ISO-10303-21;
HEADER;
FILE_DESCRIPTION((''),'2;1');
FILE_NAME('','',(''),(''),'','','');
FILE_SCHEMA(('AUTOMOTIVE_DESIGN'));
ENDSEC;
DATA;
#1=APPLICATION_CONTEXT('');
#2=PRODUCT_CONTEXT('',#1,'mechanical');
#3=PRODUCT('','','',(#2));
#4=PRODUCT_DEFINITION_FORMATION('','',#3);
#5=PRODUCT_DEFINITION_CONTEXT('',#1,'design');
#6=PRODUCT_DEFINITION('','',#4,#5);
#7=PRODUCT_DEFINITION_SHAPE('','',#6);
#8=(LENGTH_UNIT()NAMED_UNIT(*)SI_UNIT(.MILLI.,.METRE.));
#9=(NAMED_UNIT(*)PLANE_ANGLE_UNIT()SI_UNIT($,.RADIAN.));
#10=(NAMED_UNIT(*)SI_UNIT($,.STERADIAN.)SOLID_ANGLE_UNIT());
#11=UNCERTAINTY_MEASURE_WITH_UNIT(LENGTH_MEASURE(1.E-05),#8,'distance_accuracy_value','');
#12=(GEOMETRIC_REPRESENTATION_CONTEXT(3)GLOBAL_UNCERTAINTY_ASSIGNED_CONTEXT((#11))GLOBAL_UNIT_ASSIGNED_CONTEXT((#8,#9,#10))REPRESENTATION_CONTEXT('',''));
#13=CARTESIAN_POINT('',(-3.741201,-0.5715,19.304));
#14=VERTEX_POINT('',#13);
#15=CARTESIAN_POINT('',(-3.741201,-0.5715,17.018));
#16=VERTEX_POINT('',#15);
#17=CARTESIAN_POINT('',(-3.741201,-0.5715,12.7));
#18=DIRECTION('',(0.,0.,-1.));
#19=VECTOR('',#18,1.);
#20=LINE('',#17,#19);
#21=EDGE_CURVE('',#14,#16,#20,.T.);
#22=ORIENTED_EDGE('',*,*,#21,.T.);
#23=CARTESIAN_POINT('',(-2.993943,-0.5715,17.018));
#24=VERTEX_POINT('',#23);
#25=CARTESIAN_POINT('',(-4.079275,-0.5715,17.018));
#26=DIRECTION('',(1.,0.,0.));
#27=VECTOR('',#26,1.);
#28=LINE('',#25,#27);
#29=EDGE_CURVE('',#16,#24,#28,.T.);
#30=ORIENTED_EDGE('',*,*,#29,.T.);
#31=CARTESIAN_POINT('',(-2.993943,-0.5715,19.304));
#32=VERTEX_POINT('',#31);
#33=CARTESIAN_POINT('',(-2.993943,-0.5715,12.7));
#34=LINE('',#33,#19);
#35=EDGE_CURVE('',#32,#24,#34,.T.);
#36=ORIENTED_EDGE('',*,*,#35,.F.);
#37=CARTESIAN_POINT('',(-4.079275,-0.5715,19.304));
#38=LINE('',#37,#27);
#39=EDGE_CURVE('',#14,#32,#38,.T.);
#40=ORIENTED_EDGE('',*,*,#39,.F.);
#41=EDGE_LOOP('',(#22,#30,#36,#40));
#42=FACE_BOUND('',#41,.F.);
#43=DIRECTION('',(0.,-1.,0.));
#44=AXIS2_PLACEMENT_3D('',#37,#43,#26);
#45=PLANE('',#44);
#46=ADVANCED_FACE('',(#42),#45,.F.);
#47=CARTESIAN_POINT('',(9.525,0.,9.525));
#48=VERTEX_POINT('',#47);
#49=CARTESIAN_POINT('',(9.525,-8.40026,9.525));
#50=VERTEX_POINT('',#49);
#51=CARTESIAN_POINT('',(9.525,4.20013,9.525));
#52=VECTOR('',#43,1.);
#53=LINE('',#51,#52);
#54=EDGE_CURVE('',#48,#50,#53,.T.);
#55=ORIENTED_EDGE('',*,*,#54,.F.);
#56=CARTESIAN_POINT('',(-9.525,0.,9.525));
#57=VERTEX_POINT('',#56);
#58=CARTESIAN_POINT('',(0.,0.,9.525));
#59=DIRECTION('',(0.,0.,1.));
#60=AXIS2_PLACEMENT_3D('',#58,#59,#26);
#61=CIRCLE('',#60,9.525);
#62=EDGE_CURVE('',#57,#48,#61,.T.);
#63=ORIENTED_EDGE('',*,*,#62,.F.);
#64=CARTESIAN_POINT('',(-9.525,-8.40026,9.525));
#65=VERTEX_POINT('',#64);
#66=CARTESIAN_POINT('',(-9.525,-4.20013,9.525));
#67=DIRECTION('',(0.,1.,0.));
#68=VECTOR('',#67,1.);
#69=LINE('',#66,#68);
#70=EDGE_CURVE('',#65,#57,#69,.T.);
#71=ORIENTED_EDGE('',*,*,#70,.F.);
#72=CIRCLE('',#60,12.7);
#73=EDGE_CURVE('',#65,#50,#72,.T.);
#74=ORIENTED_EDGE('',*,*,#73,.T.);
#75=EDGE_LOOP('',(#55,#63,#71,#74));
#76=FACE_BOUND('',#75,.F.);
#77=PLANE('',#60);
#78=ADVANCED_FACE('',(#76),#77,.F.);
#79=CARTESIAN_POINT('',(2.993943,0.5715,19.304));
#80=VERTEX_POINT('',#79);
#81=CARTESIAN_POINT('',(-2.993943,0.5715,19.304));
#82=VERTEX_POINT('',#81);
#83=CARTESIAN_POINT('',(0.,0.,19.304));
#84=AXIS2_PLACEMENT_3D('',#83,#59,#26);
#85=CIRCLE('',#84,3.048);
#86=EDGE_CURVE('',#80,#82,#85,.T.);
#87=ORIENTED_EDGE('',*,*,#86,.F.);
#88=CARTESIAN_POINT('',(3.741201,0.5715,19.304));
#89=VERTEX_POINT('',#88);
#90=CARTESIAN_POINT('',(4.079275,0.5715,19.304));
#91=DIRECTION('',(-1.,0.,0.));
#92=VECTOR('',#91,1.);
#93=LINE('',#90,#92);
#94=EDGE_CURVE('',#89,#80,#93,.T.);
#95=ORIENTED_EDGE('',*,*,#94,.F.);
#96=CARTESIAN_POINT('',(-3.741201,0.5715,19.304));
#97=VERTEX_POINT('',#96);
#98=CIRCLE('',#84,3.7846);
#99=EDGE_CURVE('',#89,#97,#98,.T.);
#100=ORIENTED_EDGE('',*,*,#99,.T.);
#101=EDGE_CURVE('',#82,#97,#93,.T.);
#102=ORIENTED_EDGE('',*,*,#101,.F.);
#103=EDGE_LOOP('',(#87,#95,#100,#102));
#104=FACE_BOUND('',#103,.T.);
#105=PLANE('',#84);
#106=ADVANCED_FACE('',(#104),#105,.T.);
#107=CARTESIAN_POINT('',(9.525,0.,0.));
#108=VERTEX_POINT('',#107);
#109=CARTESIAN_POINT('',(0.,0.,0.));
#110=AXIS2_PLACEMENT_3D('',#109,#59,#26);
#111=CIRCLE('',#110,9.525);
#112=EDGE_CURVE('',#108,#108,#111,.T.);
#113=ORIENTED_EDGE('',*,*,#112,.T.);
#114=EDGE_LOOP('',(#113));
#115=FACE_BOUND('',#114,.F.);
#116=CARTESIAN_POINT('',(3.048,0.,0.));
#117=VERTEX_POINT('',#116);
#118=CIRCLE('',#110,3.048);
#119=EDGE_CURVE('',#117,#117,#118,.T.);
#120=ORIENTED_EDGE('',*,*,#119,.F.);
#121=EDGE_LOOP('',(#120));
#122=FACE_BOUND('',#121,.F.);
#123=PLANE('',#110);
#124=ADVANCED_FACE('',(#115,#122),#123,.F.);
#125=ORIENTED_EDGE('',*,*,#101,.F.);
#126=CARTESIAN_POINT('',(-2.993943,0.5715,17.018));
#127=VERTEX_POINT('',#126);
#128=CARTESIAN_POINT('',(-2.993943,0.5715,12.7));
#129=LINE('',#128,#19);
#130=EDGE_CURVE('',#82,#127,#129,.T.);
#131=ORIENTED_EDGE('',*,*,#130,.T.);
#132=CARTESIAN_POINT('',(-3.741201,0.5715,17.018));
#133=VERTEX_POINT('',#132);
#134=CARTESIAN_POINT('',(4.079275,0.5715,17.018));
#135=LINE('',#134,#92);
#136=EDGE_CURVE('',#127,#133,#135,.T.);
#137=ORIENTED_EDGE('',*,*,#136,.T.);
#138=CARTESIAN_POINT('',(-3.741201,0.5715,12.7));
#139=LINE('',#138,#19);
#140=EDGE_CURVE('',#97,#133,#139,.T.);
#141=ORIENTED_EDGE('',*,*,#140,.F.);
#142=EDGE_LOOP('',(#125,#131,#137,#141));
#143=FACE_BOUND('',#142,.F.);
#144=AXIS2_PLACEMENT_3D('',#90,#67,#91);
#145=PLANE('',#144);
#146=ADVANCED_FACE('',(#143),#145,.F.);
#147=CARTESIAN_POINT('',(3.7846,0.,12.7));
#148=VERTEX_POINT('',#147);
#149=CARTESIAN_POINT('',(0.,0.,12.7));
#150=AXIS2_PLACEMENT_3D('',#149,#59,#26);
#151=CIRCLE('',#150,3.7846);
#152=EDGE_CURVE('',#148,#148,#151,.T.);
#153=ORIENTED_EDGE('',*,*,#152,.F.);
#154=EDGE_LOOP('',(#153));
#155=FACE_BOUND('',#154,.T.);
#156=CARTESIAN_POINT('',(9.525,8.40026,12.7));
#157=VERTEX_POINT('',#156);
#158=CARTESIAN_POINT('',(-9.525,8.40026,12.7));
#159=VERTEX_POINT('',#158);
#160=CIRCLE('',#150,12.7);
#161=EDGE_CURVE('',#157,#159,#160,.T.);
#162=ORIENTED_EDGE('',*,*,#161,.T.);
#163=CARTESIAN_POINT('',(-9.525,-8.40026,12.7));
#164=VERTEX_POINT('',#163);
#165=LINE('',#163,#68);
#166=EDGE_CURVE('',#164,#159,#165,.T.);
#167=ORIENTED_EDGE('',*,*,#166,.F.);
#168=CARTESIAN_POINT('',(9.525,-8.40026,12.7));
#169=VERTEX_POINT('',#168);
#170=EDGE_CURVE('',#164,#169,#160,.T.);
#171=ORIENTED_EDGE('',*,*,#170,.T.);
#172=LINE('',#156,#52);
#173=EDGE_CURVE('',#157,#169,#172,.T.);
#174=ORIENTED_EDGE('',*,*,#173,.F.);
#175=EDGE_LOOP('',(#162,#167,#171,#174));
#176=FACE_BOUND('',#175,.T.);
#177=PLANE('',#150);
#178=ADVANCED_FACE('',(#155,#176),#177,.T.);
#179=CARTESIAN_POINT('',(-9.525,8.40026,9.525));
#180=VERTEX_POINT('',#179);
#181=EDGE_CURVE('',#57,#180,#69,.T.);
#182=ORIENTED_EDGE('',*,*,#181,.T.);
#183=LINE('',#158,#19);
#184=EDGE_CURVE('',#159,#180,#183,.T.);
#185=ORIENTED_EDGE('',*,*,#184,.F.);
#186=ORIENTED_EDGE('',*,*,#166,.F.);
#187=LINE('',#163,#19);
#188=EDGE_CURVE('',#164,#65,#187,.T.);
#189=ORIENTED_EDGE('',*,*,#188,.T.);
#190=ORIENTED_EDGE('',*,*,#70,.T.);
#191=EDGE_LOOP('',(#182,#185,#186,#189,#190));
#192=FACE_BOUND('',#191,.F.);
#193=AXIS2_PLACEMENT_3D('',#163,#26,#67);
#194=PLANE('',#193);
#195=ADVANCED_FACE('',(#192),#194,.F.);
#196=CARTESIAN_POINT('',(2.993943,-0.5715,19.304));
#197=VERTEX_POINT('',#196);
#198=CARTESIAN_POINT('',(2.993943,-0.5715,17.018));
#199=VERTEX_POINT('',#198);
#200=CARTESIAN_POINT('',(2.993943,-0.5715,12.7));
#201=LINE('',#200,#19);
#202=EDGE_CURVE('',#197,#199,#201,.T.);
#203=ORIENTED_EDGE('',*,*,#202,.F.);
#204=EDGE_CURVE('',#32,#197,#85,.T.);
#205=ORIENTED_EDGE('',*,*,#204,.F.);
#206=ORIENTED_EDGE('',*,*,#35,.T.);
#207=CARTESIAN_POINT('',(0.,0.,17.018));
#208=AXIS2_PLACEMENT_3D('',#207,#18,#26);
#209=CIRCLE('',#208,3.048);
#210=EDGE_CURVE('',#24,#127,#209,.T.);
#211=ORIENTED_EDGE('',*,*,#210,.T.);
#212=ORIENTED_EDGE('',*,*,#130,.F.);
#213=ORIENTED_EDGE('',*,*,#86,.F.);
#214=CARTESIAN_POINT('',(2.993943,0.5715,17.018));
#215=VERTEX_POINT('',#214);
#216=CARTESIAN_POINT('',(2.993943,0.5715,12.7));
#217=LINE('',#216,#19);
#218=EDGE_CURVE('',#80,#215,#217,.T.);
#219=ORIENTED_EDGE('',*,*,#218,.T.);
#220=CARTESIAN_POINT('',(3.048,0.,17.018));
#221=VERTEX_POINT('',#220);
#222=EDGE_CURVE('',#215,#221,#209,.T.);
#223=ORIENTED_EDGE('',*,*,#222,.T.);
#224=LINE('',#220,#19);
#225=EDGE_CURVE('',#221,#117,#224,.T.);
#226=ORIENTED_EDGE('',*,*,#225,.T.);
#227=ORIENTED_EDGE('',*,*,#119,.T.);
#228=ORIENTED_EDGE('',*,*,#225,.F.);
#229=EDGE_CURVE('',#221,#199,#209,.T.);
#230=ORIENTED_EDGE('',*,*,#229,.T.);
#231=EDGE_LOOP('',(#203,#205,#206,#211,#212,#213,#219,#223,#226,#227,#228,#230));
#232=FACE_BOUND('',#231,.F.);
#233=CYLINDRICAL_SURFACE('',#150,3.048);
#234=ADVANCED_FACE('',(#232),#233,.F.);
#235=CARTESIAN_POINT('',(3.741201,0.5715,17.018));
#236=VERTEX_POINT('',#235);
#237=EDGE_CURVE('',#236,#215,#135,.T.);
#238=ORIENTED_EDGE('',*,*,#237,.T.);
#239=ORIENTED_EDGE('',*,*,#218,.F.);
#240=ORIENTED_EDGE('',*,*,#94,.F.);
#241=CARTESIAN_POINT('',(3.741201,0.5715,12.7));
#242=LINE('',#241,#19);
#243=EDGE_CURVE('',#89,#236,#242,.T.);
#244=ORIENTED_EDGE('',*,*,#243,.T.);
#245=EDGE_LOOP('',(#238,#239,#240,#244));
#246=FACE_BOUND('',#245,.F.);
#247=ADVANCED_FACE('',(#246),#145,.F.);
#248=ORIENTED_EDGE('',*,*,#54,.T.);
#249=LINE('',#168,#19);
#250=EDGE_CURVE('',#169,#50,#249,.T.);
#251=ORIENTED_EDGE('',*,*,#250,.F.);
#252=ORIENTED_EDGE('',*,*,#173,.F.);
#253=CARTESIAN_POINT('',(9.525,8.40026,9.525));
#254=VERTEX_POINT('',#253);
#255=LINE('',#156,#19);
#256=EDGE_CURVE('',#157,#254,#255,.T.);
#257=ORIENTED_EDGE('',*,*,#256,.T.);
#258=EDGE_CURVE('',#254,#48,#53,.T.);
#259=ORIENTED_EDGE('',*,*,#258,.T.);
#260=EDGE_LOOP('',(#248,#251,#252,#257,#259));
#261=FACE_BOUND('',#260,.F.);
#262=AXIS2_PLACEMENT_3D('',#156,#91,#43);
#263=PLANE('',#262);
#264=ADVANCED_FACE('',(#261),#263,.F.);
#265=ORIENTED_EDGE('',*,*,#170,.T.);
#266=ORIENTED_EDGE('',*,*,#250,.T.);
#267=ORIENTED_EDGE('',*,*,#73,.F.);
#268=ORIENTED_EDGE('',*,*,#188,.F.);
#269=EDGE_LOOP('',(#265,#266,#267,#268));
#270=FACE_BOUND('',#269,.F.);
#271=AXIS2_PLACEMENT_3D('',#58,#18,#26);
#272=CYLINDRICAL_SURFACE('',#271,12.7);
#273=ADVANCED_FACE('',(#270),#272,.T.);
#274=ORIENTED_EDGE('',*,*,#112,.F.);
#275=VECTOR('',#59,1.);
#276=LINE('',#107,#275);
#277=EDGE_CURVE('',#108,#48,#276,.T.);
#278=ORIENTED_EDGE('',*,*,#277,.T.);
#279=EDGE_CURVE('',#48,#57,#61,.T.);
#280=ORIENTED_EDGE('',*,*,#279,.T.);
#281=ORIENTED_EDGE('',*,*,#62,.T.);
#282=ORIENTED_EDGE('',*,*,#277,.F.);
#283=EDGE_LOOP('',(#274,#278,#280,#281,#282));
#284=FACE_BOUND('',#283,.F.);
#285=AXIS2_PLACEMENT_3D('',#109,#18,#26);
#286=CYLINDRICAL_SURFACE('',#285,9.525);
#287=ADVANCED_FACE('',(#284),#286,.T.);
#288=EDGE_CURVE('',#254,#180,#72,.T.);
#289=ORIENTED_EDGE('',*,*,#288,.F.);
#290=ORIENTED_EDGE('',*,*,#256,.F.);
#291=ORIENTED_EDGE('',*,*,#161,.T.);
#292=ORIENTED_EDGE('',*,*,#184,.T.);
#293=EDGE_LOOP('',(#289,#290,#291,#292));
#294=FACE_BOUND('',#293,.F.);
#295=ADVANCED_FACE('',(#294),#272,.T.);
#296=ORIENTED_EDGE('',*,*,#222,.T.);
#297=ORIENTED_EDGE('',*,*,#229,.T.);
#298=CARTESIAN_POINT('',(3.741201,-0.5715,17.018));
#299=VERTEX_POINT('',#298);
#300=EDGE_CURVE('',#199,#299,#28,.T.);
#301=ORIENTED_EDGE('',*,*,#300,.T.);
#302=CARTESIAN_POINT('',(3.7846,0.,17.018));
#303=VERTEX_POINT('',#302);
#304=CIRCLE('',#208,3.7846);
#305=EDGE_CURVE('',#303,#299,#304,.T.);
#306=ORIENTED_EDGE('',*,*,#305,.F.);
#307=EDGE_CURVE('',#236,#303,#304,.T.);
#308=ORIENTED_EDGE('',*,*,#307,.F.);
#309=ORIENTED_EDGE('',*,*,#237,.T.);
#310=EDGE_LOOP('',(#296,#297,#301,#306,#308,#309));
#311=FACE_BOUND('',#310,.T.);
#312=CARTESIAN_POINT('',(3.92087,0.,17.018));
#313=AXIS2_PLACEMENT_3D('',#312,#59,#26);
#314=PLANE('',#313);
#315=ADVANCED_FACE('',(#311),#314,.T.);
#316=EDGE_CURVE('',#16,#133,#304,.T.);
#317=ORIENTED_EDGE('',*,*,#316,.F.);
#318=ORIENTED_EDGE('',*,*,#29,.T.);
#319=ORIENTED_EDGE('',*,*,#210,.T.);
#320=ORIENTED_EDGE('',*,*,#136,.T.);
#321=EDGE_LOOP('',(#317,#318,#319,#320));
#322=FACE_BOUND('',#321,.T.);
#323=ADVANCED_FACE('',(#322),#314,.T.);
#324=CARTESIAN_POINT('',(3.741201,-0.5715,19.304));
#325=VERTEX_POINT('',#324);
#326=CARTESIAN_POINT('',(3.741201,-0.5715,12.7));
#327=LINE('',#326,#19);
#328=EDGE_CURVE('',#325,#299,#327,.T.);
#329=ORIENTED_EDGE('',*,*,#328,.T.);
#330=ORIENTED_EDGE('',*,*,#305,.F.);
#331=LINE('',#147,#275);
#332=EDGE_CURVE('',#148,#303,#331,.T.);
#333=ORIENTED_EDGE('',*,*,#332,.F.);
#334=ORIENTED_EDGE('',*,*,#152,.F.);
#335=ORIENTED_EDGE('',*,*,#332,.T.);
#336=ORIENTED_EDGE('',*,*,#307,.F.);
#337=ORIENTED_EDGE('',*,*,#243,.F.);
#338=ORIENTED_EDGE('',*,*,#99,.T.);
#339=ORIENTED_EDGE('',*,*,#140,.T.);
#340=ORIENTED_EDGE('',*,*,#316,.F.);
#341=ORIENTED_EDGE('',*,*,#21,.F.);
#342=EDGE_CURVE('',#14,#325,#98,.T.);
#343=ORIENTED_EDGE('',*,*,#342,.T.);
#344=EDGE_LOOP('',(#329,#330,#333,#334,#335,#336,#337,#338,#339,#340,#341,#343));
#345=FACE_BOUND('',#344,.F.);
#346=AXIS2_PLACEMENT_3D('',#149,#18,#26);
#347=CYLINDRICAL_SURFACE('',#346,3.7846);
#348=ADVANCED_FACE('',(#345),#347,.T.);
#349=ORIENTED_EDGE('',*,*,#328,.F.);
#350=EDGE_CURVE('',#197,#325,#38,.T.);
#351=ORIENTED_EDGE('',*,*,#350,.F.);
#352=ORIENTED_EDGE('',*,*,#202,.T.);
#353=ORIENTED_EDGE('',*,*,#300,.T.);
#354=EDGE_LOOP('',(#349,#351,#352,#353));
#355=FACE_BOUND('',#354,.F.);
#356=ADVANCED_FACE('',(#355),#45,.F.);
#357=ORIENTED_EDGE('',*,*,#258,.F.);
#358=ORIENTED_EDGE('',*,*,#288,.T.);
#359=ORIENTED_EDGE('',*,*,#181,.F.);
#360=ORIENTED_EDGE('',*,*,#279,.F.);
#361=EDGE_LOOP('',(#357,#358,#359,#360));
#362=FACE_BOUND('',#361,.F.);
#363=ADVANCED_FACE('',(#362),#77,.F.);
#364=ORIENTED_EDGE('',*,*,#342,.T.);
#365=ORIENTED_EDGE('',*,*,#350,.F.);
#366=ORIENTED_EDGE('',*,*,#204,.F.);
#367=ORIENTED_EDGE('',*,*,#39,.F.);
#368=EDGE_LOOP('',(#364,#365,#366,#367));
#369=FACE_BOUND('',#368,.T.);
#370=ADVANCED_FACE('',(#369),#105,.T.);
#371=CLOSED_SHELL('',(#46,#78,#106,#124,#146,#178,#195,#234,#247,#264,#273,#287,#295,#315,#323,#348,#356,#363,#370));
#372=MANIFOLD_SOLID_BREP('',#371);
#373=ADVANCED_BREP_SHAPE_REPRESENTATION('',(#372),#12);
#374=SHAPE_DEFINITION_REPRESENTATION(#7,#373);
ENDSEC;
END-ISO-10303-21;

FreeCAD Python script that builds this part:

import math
import FreeCAD as App
import Part
import Sketcher
Q = App.Units.Quantity

doc = App.newDocument("Part")
body = doc.addObject("PartDesign::Body", "Body")

sketch1 = doc.addObject("Sketcher::SketchObject", "Sketch")
body.addObject(sketch1)
sketch1.AttachmentSupport = (doc.XY_Plane, [""])
sketch1.MapMode = "FlatFace"
sketch1.addGeometry(Part.Circle(App.Vector(0, 0, 0), App.Vector(0, 0, 1), 10), False)
sketch1.addConstraint(Sketcher.Constraint("Coincident", 0, 3, -1, 1))
sketch1.addConstraint(Sketcher.Constraint("Diameter", 0, Q("0.75 in")))
pad1 = doc.addObject("PartDesign::Pad", "Pad")
body.addObject(pad1)
pad1.Profile = sketch1
pad1.Length = Q("0.375 in")

sketch2 = doc.addObject("Sketcher::SketchObject", "Sketch001")
body.addObject(sketch2)
sketch2.AttachmentSupport = (doc.XY_Plane, [""])
sketch2.MapMode = "FlatFace"
sketch2.AttachmentOffset = App.Placement(App.Vector(0, 0, 0.375 * 25.4), App.Rotation())
sketch2.addGeometry(Part.Circle(App.Vector(0, 0, 0), App.Vector(0, 0, 1), 13), False)
sketch2.addConstraint(Sketcher.Constraint("Coincident", 0, 3, -1, 1))
sketch2.addConstraint(Sketcher.Constraint("Diameter", 0, Q("1 in")))
pad2 = doc.addObject("PartDesign::Pad", "Pad001")
body.addObject(pad2)
pad2.Profile = sketch2
pad2.Length = Q("0.125 in")

sketch3 = doc.addObject("Sketcher::SketchObject", "Sketch002")
body.addObject(sketch3)
sketch3.AttachmentSupport = (doc.XY_Plane, [""])
sketch3.MapMode = "FlatFace"
sketch3.AttachmentOffset = App.Placement(App.Vector(0, 0, 0.5 * 25.4), App.Rotation())
sketch3.addGeometry(Part.ArcOfCircle(Part.Circle(App.Vector(0, 0, 0), App.Vector(0, 0, 1), 13), math.radians(139), math.radians(221)), False)
sketch3.addGeometry(Part.LineSegment(App.Vector(-10, -8, 0), App.Vector(-10, 8, 0)), False)
sketch3.addGeometry(Part.LineSegment(App.Vector(10, 8, 0), App.Vector(10, -8, 0)), False)
sketch3.addGeometry(Part.ArcOfCircle(Part.Circle(App.Vector(0, 0, 0), App.Vector(0, 0, 1), 13), math.radians(-41), math.radians(0)), False)
sketch3.addGeometry(Part.ArcOfCircle(Part.Circle(App.Vector(0, 0, 0), App.Vector(0, 0, 1), 13), math.radians(0), math.radians(41)), False)
sketch3.addConstraint(Sketcher.Constraint("Coincident", 0, 1, 1, 2))
sketch3.addConstraint(Sketcher.Constraint("Coincident", 1, 1, 0, 2))
sketch3.addConstraint(Sketcher.Constraint("Coincident", 2, 2, 3, 1))
sketch3.addConstraint(Sketcher.Constraint("Tangent", 3, 2, 4, 1))
sketch3.addConstraint(Sketcher.Constraint("Coincident", 4, 2, 2, 1))
sketch3.addConstraint(Sketcher.Constraint("Vertical", 1))
sketch3.addConstraint(Sketcher.Constraint("Vertical", 2))
sketch3.addConstraint(Sketcher.Constraint("Coincident", 0, 3, -1, 1))
sketch3.addConstraint(Sketcher.Constraint("Coincident", 3, 3, -1, 1))
sketch3.addConstraint(Sketcher.Constraint("Equal", 3, 4))
sketch3.addConstraint(Sketcher.Constraint("Symmetric", 0, 1, 2, 2, -1, 1))
sketch3.addConstraint(Sketcher.Constraint("PointOnObject", 3, 2, -1))
sketch3.addConstraint(Sketcher.Constraint("Radius", 0, Q("0.5 in")))
sketch3.addConstraint(Sketcher.Constraint("DistanceX", 1, 1, 2, 2, Q("0.75 in")))
pocket1 = doc.addObject("PartDesign::Pocket", "Pocket")
body.addObject(pocket1)
pocket1.Profile = sketch3
pocket1.Length = Q("1 in")

sketch4 = doc.addObject("Sketcher::SketchObject", "Sketch003")
body.addObject(sketch4)
sketch4.AttachmentSupport = (doc.XY_Plane, [""])
sketch4.MapMode = "FlatFace"
sketch4.AttachmentOffset = App.Placement(App.Vector(0, 0, 0.5 * 25.4), App.Rotation())
sketch4.addGeometry(Part.Circle(App.Vector(0, 0, 0), App.Vector(0, 0, 1), 3.8), False)
sketch4.addGeometry(Part.Circle(App.Vector(0, 0, 0), App.Vector(0, 0, 1), 3), False)
sketch4.addConstraint(Sketcher.Constraint("Coincident", 0, 3, -1, 1))
sketch4.addConstraint(Sketcher.Constraint("Coincident", 1, 3, -1, 1))
sketch4.addConstraint(Sketcher.Constraint("Diameter", 1, Q("0.24 in")))
sketch4.addConstraint(Sketcher.Constraint("Diameter", 0, Q("0.298 in")))
pad3 = doc.addObject("PartDesign::Pad", "Pad002")
body.addObject(pad3)
pad3.Profile = sketch4
pad3.Length = Q("0.26 in")

sketch5 = doc.addObject("Sketcher::SketchObject", "Sketch004")
body.addObject(sketch5)
sketch5.AttachmentSupport = (doc.XY_Plane, [""])
sketch5.MapMode = "FlatFace"
sketch5.AttachmentOffset = App.Placement(App.Vector(0, 0, 0.5 * 25.4), App.Rotation())
sketch5.addGeometry(Part.Circle(App.Vector(0, 0, 0), App.Vector(0, 0, 1), 3), False)
sketch5.addConstraint(Sketcher.Constraint("Coincident", 0, 3, -1, 1))
sketch5.addConstraint(Sketcher.Constraint("Diameter", 0, Q("0.24 in")))
pocket2 = doc.addObject("PartDesign::Pocket", "Pocket001")
body.addObject(pocket2)
pocket2.Profile = sketch5
pocket2.Type = "ThroughAll"

sketch6 = doc.addObject("Sketcher::SketchObject", "Sketch005")
body.addObject(sketch6)
sketch6.AttachmentSupport = (doc.XY_Plane, [""])
sketch6.MapMode = "FlatFace"
sketch6.AttachmentOffset = App.Placement(App.Vector(0, 0, 0.76 * 25.4), App.Rotation())
sketch6.addGeometry(Part.LineSegment(App.Vector(4.1, -0.6, 0), App.Vector(4.1, 0.6, 0)), False)
sketch6.addGeometry(Part.LineSegment(App.Vector(4.1, 0.6, 0), App.Vector(-4.1, 0.6, 0)), False)
sketch6.addGeometry(Part.LineSegment(App.Vector(-4.1, 0.6, 0), App.Vector(-4.1, -0.6, 0)), False)
sketch6.addGeometry(Part.LineSegment(App.Vector(-4.1, -0.6, 0), App.Vector(4.1, -0.6, 0)), False)
sketch6.addConstraint(Sketcher.Constraint("Coincident", 0, 2, 1, 1))
sketch6.addConstraint(Sketcher.Constraint("Coincident", 1, 2, 2, 1))
sketch6.addConstraint(Sketcher.Constraint("Coincident", 2, 2, 3, 1))
sketch6.addConstraint(Sketcher.Constraint("Coincident", 3, 2, 0, 1))
sketch6.addConstraint(Sketcher.Constraint("Vertical", 0))
sketch6.addConstraint(Sketcher.Constraint("Horizontal", 1))
sketch6.addConstraint(Sketcher.Constraint("Vertical", 2))
sketch6.addConstraint(Sketcher.Constraint("Horizontal", 3))
sketch6.addConstraint(Sketcher.Constraint("Symmetric", 0, 2, 2, 2, -1, 1))
sketch6.addConstraint(Sketcher.Constraint("DistanceY", 0, 1, 0, 2, Q("0.045 in")))
sketch6.addConstraint(Sketcher.Constraint("DistanceX", 1, 2, 1, 1, 8.15855))
pocket3 = doc.addObject("PartDesign::Pocket", "Pocket002")
body.addObject(pocket3)
pocket3.Profile = sketch6
pocket3.Length = Q("0.09 in")

doc.recompute()
